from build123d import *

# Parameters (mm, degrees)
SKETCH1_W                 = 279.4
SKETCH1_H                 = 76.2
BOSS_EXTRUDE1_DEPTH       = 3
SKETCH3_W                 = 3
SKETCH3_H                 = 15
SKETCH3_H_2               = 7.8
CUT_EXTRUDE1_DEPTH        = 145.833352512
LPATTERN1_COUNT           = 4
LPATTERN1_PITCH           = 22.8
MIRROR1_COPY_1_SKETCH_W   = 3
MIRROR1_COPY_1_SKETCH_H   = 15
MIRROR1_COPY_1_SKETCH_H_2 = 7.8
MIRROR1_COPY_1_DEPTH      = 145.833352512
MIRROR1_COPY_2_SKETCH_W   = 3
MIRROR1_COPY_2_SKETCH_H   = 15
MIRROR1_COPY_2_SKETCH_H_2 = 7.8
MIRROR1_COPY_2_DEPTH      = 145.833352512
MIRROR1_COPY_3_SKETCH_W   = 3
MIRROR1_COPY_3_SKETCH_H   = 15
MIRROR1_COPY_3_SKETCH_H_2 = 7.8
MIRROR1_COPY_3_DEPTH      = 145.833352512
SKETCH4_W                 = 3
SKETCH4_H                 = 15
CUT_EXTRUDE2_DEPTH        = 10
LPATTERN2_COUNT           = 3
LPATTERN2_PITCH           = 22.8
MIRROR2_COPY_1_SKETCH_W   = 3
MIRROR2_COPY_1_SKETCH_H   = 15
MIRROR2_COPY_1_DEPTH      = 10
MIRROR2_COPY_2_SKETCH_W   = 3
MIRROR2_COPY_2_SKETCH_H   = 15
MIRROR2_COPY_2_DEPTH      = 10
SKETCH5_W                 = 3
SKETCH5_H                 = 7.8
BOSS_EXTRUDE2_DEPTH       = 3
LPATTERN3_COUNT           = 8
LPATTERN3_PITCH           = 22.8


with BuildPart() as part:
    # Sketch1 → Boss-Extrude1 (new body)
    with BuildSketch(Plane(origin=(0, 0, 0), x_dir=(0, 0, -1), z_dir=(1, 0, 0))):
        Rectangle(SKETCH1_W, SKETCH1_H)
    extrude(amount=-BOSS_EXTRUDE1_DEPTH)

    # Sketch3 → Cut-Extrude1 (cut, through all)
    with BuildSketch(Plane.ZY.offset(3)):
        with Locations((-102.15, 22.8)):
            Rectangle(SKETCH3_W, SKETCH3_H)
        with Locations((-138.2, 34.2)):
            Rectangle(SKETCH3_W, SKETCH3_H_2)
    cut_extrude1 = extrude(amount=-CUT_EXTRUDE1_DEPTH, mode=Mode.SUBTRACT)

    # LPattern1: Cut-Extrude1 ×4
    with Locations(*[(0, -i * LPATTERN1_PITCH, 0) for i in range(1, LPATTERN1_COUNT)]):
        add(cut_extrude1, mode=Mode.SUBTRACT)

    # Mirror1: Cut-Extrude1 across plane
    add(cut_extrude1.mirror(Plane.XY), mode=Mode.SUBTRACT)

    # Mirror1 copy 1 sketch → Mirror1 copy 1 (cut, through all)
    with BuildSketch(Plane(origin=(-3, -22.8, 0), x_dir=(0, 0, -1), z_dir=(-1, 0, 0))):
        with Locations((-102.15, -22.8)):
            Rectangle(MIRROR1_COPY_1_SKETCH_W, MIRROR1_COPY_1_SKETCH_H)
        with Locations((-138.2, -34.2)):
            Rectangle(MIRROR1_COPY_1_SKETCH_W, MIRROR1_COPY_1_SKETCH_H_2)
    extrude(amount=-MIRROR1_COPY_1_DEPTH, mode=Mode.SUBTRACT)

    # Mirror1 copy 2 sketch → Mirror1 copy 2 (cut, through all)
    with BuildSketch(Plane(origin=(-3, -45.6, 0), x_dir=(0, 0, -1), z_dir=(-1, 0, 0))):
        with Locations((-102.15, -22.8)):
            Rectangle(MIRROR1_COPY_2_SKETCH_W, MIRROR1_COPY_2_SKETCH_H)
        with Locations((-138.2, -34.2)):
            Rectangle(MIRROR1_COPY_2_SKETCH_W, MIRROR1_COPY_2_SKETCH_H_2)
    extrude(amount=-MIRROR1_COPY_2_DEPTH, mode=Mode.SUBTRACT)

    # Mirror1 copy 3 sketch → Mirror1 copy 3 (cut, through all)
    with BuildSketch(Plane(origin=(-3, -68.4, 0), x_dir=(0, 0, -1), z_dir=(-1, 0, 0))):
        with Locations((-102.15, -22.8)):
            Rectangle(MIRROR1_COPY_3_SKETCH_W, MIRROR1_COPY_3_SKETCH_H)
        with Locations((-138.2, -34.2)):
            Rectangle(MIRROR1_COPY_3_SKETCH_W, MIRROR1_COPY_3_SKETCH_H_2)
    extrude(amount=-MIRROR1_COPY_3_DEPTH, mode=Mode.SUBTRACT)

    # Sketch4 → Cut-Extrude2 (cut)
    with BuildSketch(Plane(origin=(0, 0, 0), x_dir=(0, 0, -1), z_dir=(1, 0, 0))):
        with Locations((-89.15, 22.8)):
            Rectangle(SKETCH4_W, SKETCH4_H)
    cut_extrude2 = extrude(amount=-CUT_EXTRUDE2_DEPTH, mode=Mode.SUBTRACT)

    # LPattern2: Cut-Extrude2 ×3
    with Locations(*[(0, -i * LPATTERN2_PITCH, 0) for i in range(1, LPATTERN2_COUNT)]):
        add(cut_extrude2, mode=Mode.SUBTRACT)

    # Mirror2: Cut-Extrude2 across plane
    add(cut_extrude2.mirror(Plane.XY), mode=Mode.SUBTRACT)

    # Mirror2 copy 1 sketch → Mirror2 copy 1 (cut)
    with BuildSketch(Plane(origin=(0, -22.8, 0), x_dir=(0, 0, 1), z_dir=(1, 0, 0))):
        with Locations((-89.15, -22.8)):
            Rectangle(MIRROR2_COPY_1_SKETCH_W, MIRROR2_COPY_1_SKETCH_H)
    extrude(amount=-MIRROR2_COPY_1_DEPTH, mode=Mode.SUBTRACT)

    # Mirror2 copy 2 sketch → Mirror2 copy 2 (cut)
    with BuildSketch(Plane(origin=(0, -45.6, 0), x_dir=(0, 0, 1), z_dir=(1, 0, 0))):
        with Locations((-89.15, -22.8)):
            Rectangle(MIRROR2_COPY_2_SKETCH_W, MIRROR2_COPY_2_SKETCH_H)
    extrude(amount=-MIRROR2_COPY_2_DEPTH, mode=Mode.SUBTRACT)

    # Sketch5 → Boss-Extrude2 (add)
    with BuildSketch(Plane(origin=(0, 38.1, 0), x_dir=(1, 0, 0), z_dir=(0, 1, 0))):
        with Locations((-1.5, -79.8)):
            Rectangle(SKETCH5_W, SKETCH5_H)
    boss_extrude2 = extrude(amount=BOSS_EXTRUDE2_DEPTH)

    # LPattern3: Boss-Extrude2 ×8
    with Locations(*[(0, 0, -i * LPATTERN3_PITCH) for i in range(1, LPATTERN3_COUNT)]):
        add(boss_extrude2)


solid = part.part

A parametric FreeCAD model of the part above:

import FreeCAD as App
import Part
import Sketcher
from FreeCAD import Vector
Q = App.Units.Quantity


def add_polygon(sketch, points):
    """Adds a closed chain of lines whose ends are joined by coincident constraints."""
    first, n = sketch.GeometryCount, len(points)
    for a, b in zip(points, points[1:] + points[:1]):
        sketch.addGeometry(Part.LineSegment(App.Vector(*a, 0), App.Vector(*b, 0)), False)
    for i in range(n):
        sketch.addConstraint(Sketcher.Constraint("Coincident", first + i, 2, first + (i + 1) % n, 1))

doc = App.newDocument("Part")
body = doc.addObject("PartDesign::Body", "Body")

# Sketch on YZ plane
sketch1 = body.newObject("Sketcher::SketchObject", "Sketch")
sketch1.AttachmentSupport = (doc.getObject("YZ_Plane"), [""])
sketch1.MapMode = "FlatFace"
add_polygon(sketch1, [(38.1, 139.7), (-38.1, 139.7), (-38.1, -139.7), (38.1, -139.7)])  # lines 0-3
sketch1.addConstraint(Sketcher.Constraint("Horizontal", 0))
sketch1.addConstraint(Sketcher.Constraint("Vertical", 1))
sketch1.addConstraint(Sketcher.Constraint("Horizontal", 2))
sketch1.addConstraint(Sketcher.Constraint("Vertical", 3))
sketch1.addConstraint(Sketcher.Constraint("Symmetric", 0, 2, 2, 2, -1, 1))
sketch1.addConstraint(Sketcher.Constraint("DistanceX", 0, 2, 0, 1, Q("76.2 mm")))
sketch1.addConstraint(Sketcher.Constraint("DistanceY", 1, 2, 1, 1, Q("279.4 mm")))
pad1 = body.newObject("PartDesign::Pad", "Pad")
pad1.Profile = sketch1
pad1.Length = 3
pad1.Reversed = True

# Sketch on YZ plane
sketch2 = body.newObject("Sketcher::SketchObject", "Sketch001")
sketch2.AttachmentSupport = (doc.getObject("YZ_Plane"), [""])
sketch2.MapMode = "FlatFace"
sketch2.AttachmentOffset = App.Placement(Vector(0, 0, -3), App.Rotation())
add_polygon(sketch2, [(30.3, -103.65), (15.3, -103.65), (15.3, -100.65), (30.3, -100.65)])  # lines 0-3
add_polygon(sketch2, [(38.1, -139.7), (30.3, -139.7), (30.3, -136.7), (38.1, -136.7)])  # lines 4-7
sketch2.addConstraint(Sketcher.Constraint("Horizontal", 0))
sketch2.addConstraint(Sketcher.Constraint("Vertical", 1))
sketch2.addConstraint(Sketcher.Constraint("Horizontal", 2))
sketch2.addConstraint(Sketcher.Constraint("Vertical", 3))
sketch2.addConstraint(Sketcher.Constraint("Horizontal", 4))
sketch2.addConstraint(Sketcher.Constraint("Vertical", 5))
sketch2.addConstraint(Sketcher.Constraint("Horizontal", 6))
sketch2.addConstraint(Sketcher.Constraint("Vertical", 7))
sketch2.addConstraint(Sketcher.Constraint("Vertical", 3, 2, 4, 2))
sketch2.addConstraint(Sketcher.Constraint("Equal", 3, 5))
sketch2.addConstraint(Sketcher.Constraint("DistanceX", 0, 2, 0, 1, Q("15 mm")))
sketch2.addConstraint(Sketcher.Constraint("DistanceY", 1, 1, 1, 2, Q("3 mm")))
sketch2.addConstraint(Sketcher.Constraint("DistanceX", 4, 2, 4, 1, Q("7.8 mm")))
sketch2.addConstraint(Sketcher.Constraint("DistanceX", -1, 1, 0, 2, Q("15.3 mm")))
sketch2.addConstraint(Sketcher.Constraint("DistanceY", 4, 2, -1, 1, Q("139.7 mm")))
sketch2.addConstraint(Sketcher.Constraint("DistanceY", 0, 2, -1, 1, Q("103.65 mm")))
pocket1 = body.newObject("PartDesign::Pocket", "Pocket")
pocket1.Profile = sketch2
pocket1.Type = "ThroughAll"
pocket1.Reversed = True
doc.recompute()

linearpattern = body.newObject("PartDesign::LinearPattern", "LinearPattern")
linearpattern.Originals = [pocket1]
linearpattern.Direction = (doc.getObject("Y_Axis"), [""])
linearpattern.Mode = "offset"
linearpattern.Offset = 22.8
linearpattern.Occurrences = 4
linearpattern.Reversed = True
body.Tip = linearpattern
doc.recompute()

mirrored = body.newObject("PartDesign::Mirrored", "Mirrored")
mirrored.Originals = [pocket1]
mirrored.MirrorPlane = (doc.getObject("XY_Plane"), [""])
body.Tip = mirrored

# Sketch on YZ plane
sketch3 = body.newObject("Sketcher::SketchObject", "Sketch002")
sketch3.AttachmentSupport = (doc.getObject("YZ_Plane"), [""])
sketch3.MapMode = "FlatFace"
sketch3.AttachmentOffset = App.Placement(Vector(0, 0, -3), App.Rotation())
add_polygon(sketch3, [(-7.5, 103.65), (7.5, 103.65), (7.5, 100.65), (-7.5, 100.65)])  # lines 0-3
add_polygon(sketch3, [(7.5, 139.7), (15.3, 139.7), (15.3, 136.7), (7.5, 136.7)])  # lines 4-7
sketch3.addConstraint(Sketcher.Constraint("Horizontal", 0))
sketch3.addConstraint(Sketcher.Constraint("Vertical", 1))
sketch3.addConstraint(Sketcher.Constraint("Horizontal", 2))
sketch3.addConstraint(Sketcher.Constraint("Vertical", 3))
sketch3.addConstraint(Sketcher.Constraint("Horizontal", 4))
sketch3.addConstraint(Sketcher.Constraint("Vertical", 5))
sketch3.addConstraint(Sketcher.Constraint("Horizontal", 6))
sketch3.addConstraint(Sketcher.Constraint("Vertical", 7))
sketch3.addConstraint(Sketcher.Constraint("Vertical", 1, 2, 6, 2))
sketch3.addConstraint(Sketcher.Constraint("Equal", 3, 5))
sketch3.addConstraint(Sketcher.Constraint("DistanceX", 0, 1, 0, 2, Q("15 mm")))
sketch3.addConstraint(Sketcher.Constraint("DistanceY", 1, 2, 1, 1, Q("3 mm")))
sketch3.addConstraint(Sketcher.Constraint("DistanceX", 4, 1, 4, 2, Q("7.8 mm")))
sketch3.addConstraint(Sketcher.Constraint("DistanceX", -1, 1, 0, 2, Q("7.5 mm")))
sketch3.addConstraint(Sketcher.Constraint("DistanceY", -1, 1, 4, 2, Q("139.7 mm")))
sketch3.addConstraint(Sketcher.Constraint("DistanceY", -1, 1, 0, 2, Q("103.65 mm")))
pocket2 = body.newObject("PartDesign::Pocket", "Pocket001")
pocket2.Profile = sketch3
pocket2.Type = "ThroughAll"
pocket2.Reversed = True

# Sketch on YZ plane
sketch4 = body.newObject("Sketcher::SketchObject", "Sketch003")
sketch4.AttachmentSupport = (doc.getObject("YZ_Plane"), [""])
sketch4.MapMode = "FlatFace"
sketch4.AttachmentOffset = App.Placement(Vector(0, 0, -3), App.Rotation())
add_polygon(sketch4, [(-30.3, 103.65), (-15.3, 103.65), (-15.3, 100.65), (-30.3, 100.65)])  # lines 0-3
add_polygon(sketch4, [(-15.3, 139.7), (-7.5, 139.7), (-7.5, 136.7), (-15.3, 136.7)])  # lines 4-7
sketch4.addConstraint(Sketcher.Constraint("Horizontal", 0))
sketch4.addConstraint(Sketcher.Constraint("Vertical", 1))
sketch4.addConstraint(Sketcher.Constraint("Horizontal", 2))
sketch4.addConstraint(Sketcher.Constraint("Vertical", 3))
sketch4.addConstraint(Sketcher.Constraint("Horizontal", 4))
sketch4.addConstraint(Sketcher.Constraint("Vertical", 5))
sketch4.addConstraint(Sketcher.Constraint("Horizontal", 6))
sketch4.addConstraint(Sketcher.Constraint("Vertical", 7))
sketch4.addConstraint(Sketcher.Constraint("Vertical", 1, 2, 6, 2))
sketch4.addConstraint(Sketcher.Constraint("Equal", 3, 5))
sketch4.addConstraint(Sketcher.Constraint("DistanceX", 0, 1, 0, 2, Q("15 mm")))
sketch4.addConstraint(Sketcher.Constraint("DistanceY", 1, 2, 1, 1, Q("3 mm")))
sketch4.addConstraint(Sketcher.Constraint("DistanceX", 4, 1, 4, 2, Q("7.8 mm")))
sketch4.addConstraint(Sketcher.Constraint("DistanceX", 0, 2, -1, 1, Q("15.3 mm")))
sketch4.addConstraint(Sketcher.Constraint("DistanceY", -1, 1, 4, 2, Q("139.7 mm")))
sketch4.addConstraint(Sketcher.Constraint("DistanceY", -1, 1, 0, 2, Q("103.65 mm")))
pocket3 = body.newObject("PartDesign::Pocket", "Pocket002")
pocket3.Profile = sketch4
pocket3.Type = "ThroughAll"
pocket3.Reversed = True

# Sketch on YZ plane
sketch5 = body.newObject("Sketcher::SketchObject", "Sketch004")
sketch5.AttachmentSupport = (doc.getObject("YZ_Plane"), [""])
sketch5.MapMode = "FlatFace"
sketch5.AttachmentOffset = App.Placement(Vector(0, 0, -3), App.Rotation())
add_polygon(sketch5, [(-53.1, 103.65), (-38.1, 103.65), (-38.1, 100.65), (-53.1, 100.65)])  # lines 0-3
add_polygon(sketch5, [(-38.1, 139.7), (-30.3, 139.7), (-30.3, 136.7), (-38.1, 136.7)])  # lines 4-7
sketch5.addConstraint(Sketcher.Constraint("Horizontal", 0))
sketch5.addConstraint(Sketcher.Constraint("Vertical", 1))
sketch5.addConstraint(Sketcher.Constraint("Horizontal", 2))
sketch5.addConstraint(Sketcher.Constraint("Vertical", 3))
sketch5.addConstraint(Sketcher.Constraint("Horizontal", 4))
sketch5.addConstraint(Sketcher.Constraint("Vertical", 5))
sketch5.addConstraint(Sketcher.Constraint("Horizontal", 6))
sketch5.addConstraint(Sketcher.Constraint("Vertical", 7))
sketch5.addConstraint(Sketcher.Constraint("Vertical", 1, 2, 6, 2))
sketch5.addConstraint(Sketcher.Constraint("Equal", 3, 5))
sketch5.addConstraint(Sketcher.Constraint("DistanceX", 0, 1, 0, 2, Q("15 mm")))
sketch5.addConstraint(Sketcher.Constraint("DistanceY", 1, 2, 1, 1, Q("3 mm")))
sketch5.addConstraint(Sketcher.Constraint("DistanceX", 4, 1, 4, 2, Q("7.8 mm")))
sketch5.addConstraint(Sketcher.Constraint("DistanceX", 0, 2, -1, 1, Q("38.1 mm")))
sketch5.addConstraint(Sketcher.Constraint("DistanceY", -1, 1, 4, 2, Q("139.7 mm")))
sketch5.addConstraint(Sketcher.Constraint("DistanceY", -1, 1, 0, 2, Q("103.65 mm")))
pocket4 = body.newObject("PartDesign::Pocket", "Pocket003")
pocket4.Profile = sketch5
pocket4.Type = "ThroughAll"
pocket4.Reversed = True

# Sketch on YZ plane
sketch6 = body.newObject("Sketcher::SketchObject", "Sketch005")
sketch6.AttachmentSupport = (doc.getObject("YZ_Plane"), [""])
sketch6.MapMode = "FlatFace"
add_polygon(sketch6, [(30.3, 90.65), (15.3, 90.65), (15.3, 87.65), (30.3, 87.65)])  # lines 0-3
sketch6.addConstraint(Sketcher.Constraint("Horizontal", 0))
sketch6.addConstraint(Sketcher.Constraint("Vertical", 1))
sketch6.addConstraint(Sketcher.Constraint("Horizontal", 2))
sketch6.addConstraint(Sketcher.Constraint("Vertical", 3))
sketch6.addConstraint(Sketcher.Constraint("DistanceX", 0, 2, 0, 1, Q("15 mm")))
sketch6.addConstraint(Sketcher.Constraint("DistanceY", 1, 2, 1, 1, Q("3 mm")))
sketch6.addConstraint(Sketcher.Constraint("DistanceX", -1, 1, 0, 2, Q("15.3 mm")))
sketch6.addConstraint(Sketcher.Constraint("DistanceY", -1, 1, 0, 2, Q("90.65 mm")))
pocket5 = body.newObject("PartDesign::Pocket", "Pocket004")
pocket5.Profile = sketch6
pocket5.Length = 10
doc.recompute()

linearpattern2 = body.newObject("PartDesign::LinearPattern", "LinearPattern001")
linearpattern2.Originals = [pocket5]
linearpattern2.Direction = (doc.getObject("Y_Axis"), [""])
linearpattern2.Mode = "offset"
linearpattern2.Offset = 22.8
linearpattern2.Occurrences = 3
linearpattern2.Reversed = True
body.Tip = linearpattern2
doc.recompute()

mirrored2 = body.newObject("PartDesign::Mirrored", "Mirrored001")
mirrored2.Originals = [pocket5]
mirrored2.MirrorPlane = (doc.getObject("XY_Plane"), [""])
body.Tip = mirrored2

# Sketch on YZ plane
sketch7 = body.newObject("Sketcher::SketchObject", "Sketch006")
sketch7.AttachmentSupport = (doc.getObject("YZ_Plane"), [""])
sketch7.MapMode = "FlatFace"
add_polygon(sketch7, [(-7.5, -90.65), (7.5, -90.65), (7.5, -87.65), (-7.5, -87.65)])  # lines 0-3
sketch7.addConstraint(Sketcher.Constraint("Horizontal", 0))
sketch7.addConstraint(Sketcher.Constraint("Vertical", 1))
sketch7.addConstraint(Sketcher.Constraint("Horizontal", 2))
sketch7.addConstraint(Sketcher.Constraint("Vertical", 3))
sketch7.addConstraint(Sketcher.Constraint("DistanceX", 0, 1, 0, 2, Q("15 mm")))
sketch7.addConstraint(Sketcher.Constraint("DistanceY", 1, 1, 1, 2, Q("3 mm")))
sketch7.addConstraint(Sketcher.Constraint("DistanceX", -1, 1, 0, 2, Q("7.5 mm")))
sketch7.addConstraint(Sketcher.Constraint("DistanceY", 0, 2, -1, 1, Q("90.65 mm")))
pocket6 = body.newObject("PartDesign::Pocket", "Pocket005")
pocket6.Profile = sketch7
pocket6.Length = 10

# Sketch on YZ plane
sketch8 = body.newObject("Sketcher::SketchObject", "Sketch007")
sketch8.AttachmentSupport = (doc.getObject("YZ_Plane"), [""])
sketch8.MapMode = "FlatFace"
add_polygon(sketch8, [(-30.3, -90.65), (-15.3, -90.65), (-15.3, -87.65), (-30.3, -87.65)])  # lines 0-3
sketch8.addConstraint(Sketcher.Constraint("Horizontal", 0))
sketch8.addConstraint(Sketcher.Constraint("Vertical", 1))
sketch8.addConstraint(Sketcher.Constraint("Horizontal", 2))
sketch8.addConstraint(Sketcher.Constraint("Vertical", 3))
sketch8.addConstraint(Sketcher.Constraint("DistanceX", 0, 1, 0, 2, Q("15 mm")))
sketch8.addConstraint(Sketcher.Constraint("DistanceY", 1, 1, 1, 2, Q("3 mm")))
sketch8.addConstraint(Sketcher.Constraint("DistanceX", 0, 2, -1, 1, Q("15.3 mm")))
sketch8.addConstraint(Sketcher.Constraint("DistanceY", 0, 2, -1, 1, Q("90.65 mm")))
pocket7 = body.newObject("PartDesign::Pocket", "Pocket006")
pocket7.Profile = sketch8
pocket7.Length = 10

# Sketch on XZ plane
sketch9 = body.newObject("Sketcher::SketchObject", "Sketch008")
sketch9.AttachmentSupport = (doc.getObject("XZ_Plane"), [""])
sketch9.MapMode = "FlatFace"
sketch9.AttachmentOffset = App.Placement(Vector(0, 0, -38.1), App.Rotation())
add_polygon(sketch9, [(-3, 75.9), (-3, 83.7), (0, 83.7), (0, 75.9)])  # lines 0-3
sketch9.addConstraint(Sketcher.Constraint("Vertical", 0))
sketch9.addConstraint(Sketcher.Constraint("Horizontal", 1))
sketch9.addConstraint(Sketcher.Constraint("Vertical", 2))
sketch9.addConstraint(Sketcher.Constraint("Horizontal", 3))
sketch9.addConstraint(Sketcher.Constraint("PointOnObject", 1, 2, -2))
sketch9.addConstraint(Sketcher.Constraint("DistanceX", 1, 1, 1, 2, Q("3 mm")))
sketch9.addConstraint(Sketcher.Constraint("DistanceY", 0, 1, 0, 2, Q("7.8 mm")))
sketch9.addConstraint(Sketcher.Constraint("DistanceY", -1, 1, 0, 2, Q("83.7 mm")))
pad2 = body.newObject("PartDesign::Pad", "Pad001")
pad2.Profile = sketch9
pad2.Length = 3
pad2.Reversed = True
doc.recompute()

linearpattern3 = body.newObject("PartDesign::LinearPattern", "LinearPattern002")
linearpattern3.Originals = [pad2]
linearpattern3.Direction = (doc.getObject("Z_Axis"), [""])
linearpattern3.Mode = "offset"
linearpattern3.Offset = 22.8
linearpattern3.Occurrences = 8
linearpattern3.Reversed = True
body.Tip = linearpattern3

doc.recompute()
